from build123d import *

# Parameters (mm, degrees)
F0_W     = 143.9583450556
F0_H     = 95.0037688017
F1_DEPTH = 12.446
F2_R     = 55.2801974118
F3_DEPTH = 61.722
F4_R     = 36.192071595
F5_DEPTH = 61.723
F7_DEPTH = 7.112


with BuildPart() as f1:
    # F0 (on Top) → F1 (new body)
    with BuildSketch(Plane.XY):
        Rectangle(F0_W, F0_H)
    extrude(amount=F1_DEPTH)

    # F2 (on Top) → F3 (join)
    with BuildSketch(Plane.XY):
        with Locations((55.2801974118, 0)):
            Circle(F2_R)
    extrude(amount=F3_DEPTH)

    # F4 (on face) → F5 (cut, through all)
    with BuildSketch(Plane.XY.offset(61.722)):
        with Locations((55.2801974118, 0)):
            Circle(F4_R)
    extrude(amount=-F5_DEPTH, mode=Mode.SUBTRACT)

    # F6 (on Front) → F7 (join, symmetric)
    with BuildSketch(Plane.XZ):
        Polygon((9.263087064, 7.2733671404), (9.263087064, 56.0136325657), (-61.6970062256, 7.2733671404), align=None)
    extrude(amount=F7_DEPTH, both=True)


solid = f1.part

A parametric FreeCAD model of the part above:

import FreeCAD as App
import Part
import Sketcher

V = App.Vector
Q = App.Units.Quantity

doc = App.newDocument("Part")
body = doc.addObject("PartDesign::Body", "Body")

# Sketch on XY plane
sketch1 = body.newObject("Sketcher::SketchObject", "Sketch")
sketch1.AttachmentSupport = (doc.getObject("XY_Plane"), [""])
sketch1.MapMode = "FlatFace"
sketch1.addGeometry(Part.LineSegment(V(-71.979173, 47.501884, 0), V(-71.979173, -47.501884, 0)), False)
sketch1.addGeometry(Part.LineSegment(V(-71.979173, -47.501884, 0), V(71.979173, -47.501884, 0)), False)
sketch1.addGeometry(Part.LineSegment(V(71.979173, -47.501884, 0), V(71.979173, 47.501884, 0)), False)
sketch1.addGeometry(Part.LineSegment(V(71.979173, 47.501884, 0), V(-71.979173, 47.501884, 0)), False)
sketch1.addConstraint(Sketcher.Constraint("Coincident", 0, 2, 1, 1))
sketch1.addConstraint(Sketcher.Constraint("Coincident", 1, 2, 2, 1))
sketch1.addConstraint(Sketcher.Constraint("Coincident", 2, 2, 3, 1))
sketch1.addConstraint(Sketcher.Constraint("Coincident", 3, 2, 0, 1))
sketch1.addConstraint(Sketcher.Constraint("Vertical", 0))
sketch1.addConstraint(Sketcher.Constraint("Horizontal", 1))
sketch1.addConstraint(Sketcher.Constraint("Vertical", 2))
sketch1.addConstraint(Sketcher.Constraint("Horizontal", 3))
sketch1.addConstraint(Sketcher.Constraint("Symmetric", 0, 2, 2, 2, -1, 1))
sketch1.addConstraint(Sketcher.Constraint("DistanceY", 0, 2, 0, 1, 95.003769))
sketch1.addConstraint(Sketcher.Constraint("DistanceX", 1, 1, 1, 2, 143.958345))
pad1 = body.newObject("PartDesign::Pad", "Pad")
pad1.Profile = sketch1
pad1.Length = Q("0.49 in")

# Sketch on XY plane
sketch2 = body.newObject("Sketcher::SketchObject", "Sketch001")
sketch2.AttachmentSupport = (doc.getObject("XY_Plane"), [""])
sketch2.MapMode = "FlatFace"
sketch2.addGeometry(Part.Circle(V(55.280197, 0, 0), V(0, 0, 1), 55.280197), False)
sketch2.addConstraint(Sketcher.Constraint("PointOnObject", 0, 3, -1))
sketch2.addConstraint(Sketcher.Constraint("Diameter", 0, 110.560395))
sketch2.addConstraint(Sketcher.Constraint("DistanceX", -1, 1, 0, 3, 55.280197))
pad2 = body.newObject("PartDesign::Pad", "Pad001")
pad2.Profile = sketch2
pad2.Length = Q("2.43 in")

# Sketch on XY plane
sketch3 = body.newObject("Sketcher::SketchObject", "Sketch002")
sketch3.AttachmentSupport = (doc.getObject("XY_Plane"), [""])
sketch3.MapMode = "FlatFace"
sketch3.AttachmentOffset = App.Placement(V(0, 0, 2.43 * 25.4), App.Rotation())
sketch3.addGeometry(Part.Circle(V(55.280197, 0, 0), V(0, 0, 1), 36.192072), False)
sketch3.addConstraint(Sketcher.Constraint("PointOnObject", 0, 3, -1))
sketch3.addConstraint(Sketcher.Constraint("Diameter", 0, 72.384143))
sketch3.addConstraint(Sketcher.Constraint("DistanceX", -1, 1, 0, 3, 55.280197))
pocket1 = body.newObject("PartDesign::Pocket", "Pocket")
pocket1.Profile = sketch3
pocket1.Type = "ThroughAll"

# Sketch on XZ plane
sketch4 = body.newObject("Sketcher::SketchObject", "Sketch003")
sketch4.AttachmentSupport = (doc.getObject("XZ_Plane"), [""])
sketch4.MapMode = "FlatFace"
sketch4.addGeometry(Part.LineSegment(V(9.263087, 7.273367, 0), V(9.263087, 56.013633, 0)), False)
sketch4.addGeometry(Part.LineSegment(V(9.263087, 56.013633, 0), V(-61.697006, 7.273367, 0)), False)
sketch4.addGeometry(Part.LineSegment(V(-61.697006, 7.273367, 0), V(9.263087, 7.273367, 0)), False)
sketch4.addConstraint(Sketcher.Constraint("Coincident", 0, 2, 1, 1))
sketch4.addConstraint(Sketcher.Constraint("Coincident", 1, 2, 2, 1))
sketch4.addConstraint(Sketcher.Constraint("Coincident", 2, 2, 0, 1))
sketch4.addConstraint(Sketcher.Constraint("Vertical", 0))
sketch4.addConstraint(Sketcher.Constraint("Horizontal", 2))
sketch4.addConstraint(Sketcher.Constraint("DistanceX", 2, 1, 2, 2, 70.960093))
sketch4.addConstraint(Sketcher.Constraint("DistanceY", 0, 1, 0, 2, 48.740265))
sketch4.addConstraint(Sketcher.Constraint("DistanceX", -1, 1, 0, 2, 9.263087))
sketch4.addConstraint(Sketcher.Constraint("DistanceY", -1, 1, 0, 2, 56.013633))
pad3 = body.newObject("PartDesign::Pad", "Pad002")
pad3.Profile = sketch4
pad3.Length = Q("0.56 in")
pad3.Midplane = True

doc.recompute()
